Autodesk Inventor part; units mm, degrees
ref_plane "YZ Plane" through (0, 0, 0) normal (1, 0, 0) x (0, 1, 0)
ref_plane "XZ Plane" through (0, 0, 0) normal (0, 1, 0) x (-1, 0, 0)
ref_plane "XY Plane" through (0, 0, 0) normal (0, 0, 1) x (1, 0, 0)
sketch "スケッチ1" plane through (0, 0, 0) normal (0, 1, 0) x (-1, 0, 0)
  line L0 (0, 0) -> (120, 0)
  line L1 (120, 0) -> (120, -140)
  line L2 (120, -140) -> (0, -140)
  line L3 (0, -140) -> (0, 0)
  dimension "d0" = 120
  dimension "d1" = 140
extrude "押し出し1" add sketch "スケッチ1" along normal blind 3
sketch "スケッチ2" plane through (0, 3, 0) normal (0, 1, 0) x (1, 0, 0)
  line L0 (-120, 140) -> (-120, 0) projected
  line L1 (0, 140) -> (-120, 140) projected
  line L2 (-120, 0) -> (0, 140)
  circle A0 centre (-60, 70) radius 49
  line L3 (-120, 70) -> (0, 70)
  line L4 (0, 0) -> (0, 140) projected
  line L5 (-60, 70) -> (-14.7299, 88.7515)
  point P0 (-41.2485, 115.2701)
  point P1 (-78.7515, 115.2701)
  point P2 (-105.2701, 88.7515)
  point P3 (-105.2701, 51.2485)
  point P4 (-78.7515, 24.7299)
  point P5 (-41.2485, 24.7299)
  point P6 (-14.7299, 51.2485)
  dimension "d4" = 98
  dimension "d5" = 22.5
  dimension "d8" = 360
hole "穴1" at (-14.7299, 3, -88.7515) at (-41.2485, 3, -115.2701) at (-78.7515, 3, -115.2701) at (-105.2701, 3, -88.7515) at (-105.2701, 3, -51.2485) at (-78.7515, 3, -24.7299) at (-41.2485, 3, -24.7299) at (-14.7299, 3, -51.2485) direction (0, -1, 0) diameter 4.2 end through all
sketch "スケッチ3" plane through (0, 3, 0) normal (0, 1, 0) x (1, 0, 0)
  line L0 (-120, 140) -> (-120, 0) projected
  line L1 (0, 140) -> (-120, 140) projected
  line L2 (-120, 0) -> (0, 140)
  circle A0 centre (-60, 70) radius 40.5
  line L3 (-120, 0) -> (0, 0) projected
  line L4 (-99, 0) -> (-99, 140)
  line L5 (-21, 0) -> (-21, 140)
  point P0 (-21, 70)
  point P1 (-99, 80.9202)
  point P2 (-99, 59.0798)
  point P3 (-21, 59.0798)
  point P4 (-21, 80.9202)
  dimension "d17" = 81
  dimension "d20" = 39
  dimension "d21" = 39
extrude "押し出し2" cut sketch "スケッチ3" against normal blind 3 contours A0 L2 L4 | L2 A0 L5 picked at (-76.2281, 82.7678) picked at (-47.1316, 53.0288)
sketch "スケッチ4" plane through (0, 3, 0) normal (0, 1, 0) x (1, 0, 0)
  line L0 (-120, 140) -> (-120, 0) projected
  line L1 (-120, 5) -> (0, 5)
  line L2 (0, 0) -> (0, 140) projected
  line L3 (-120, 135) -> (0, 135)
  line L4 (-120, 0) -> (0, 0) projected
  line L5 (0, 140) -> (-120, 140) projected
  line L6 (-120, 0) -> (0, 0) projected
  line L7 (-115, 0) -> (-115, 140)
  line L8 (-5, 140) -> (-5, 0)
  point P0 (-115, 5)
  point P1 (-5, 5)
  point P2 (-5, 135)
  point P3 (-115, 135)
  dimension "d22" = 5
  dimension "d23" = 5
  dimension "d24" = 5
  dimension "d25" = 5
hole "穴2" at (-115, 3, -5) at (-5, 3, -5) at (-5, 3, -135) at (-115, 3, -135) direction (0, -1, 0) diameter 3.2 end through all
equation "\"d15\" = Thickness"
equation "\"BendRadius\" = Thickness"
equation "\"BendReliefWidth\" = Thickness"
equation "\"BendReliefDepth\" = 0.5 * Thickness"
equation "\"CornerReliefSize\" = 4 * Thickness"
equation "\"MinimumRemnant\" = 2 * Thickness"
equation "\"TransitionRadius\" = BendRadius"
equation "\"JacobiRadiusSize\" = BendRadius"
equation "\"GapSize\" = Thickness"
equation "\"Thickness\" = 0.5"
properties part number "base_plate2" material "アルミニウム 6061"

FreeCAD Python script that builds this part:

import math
import FreeCAD as App
import Part
import Sketcher

doc = App.newDocument("Part")
body = doc.addObject("PartDesign::Body", "Body")

sketch1 = body.newObject("Sketcher::SketchObject", "Sketch")
sketch1.AttachmentSupport = (doc.getObject("XZ_Plane"), [""])
sketch1.MapMode = "FlatFace"
sketch1.addGeometry([
    Part.LineSegment(App.Vector(-120, 0, 0), App.Vector(0, 0, 0)),
    Part.LineSegment(App.Vector(0, 0, 0), App.Vector(0, -140, 0)),
    Part.LineSegment(App.Vector(0, -140, 0), App.Vector(-120, -140, 0)),
    Part.LineSegment(App.Vector(-120, -140, 0), App.Vector(-120, 0, 0)),
], False)
sketch1.addConstraint([
    Sketcher.Constraint("Coincident", 0, 2, 1, 1),
    Sketcher.Constraint("Coincident", 1, 2, 2, 1),
    Sketcher.Constraint("Coincident", 2, 2, 3, 1),
    Sketcher.Constraint("Coincident", 3, 2, 0, 1),
    Sketcher.Constraint("Horizontal", 0),
    Sketcher.Constraint("Vertical", 1),
    Sketcher.Constraint("Horizontal", 2),
    Sketcher.Constraint("Vertical", 3),
    Sketcher.Constraint("Coincident", 0, 2, -1, 1),
    Sketcher.Constraint("DistanceX", 0, 1, 0, 2, 120.0),
    Sketcher.Constraint("DistanceY", 1, 2, 1, 1, 140.0),
])
pad1 = body.newObject("PartDesign::Pad", "Pad")
pad1.Profile = sketch1
pad1.Length = 3
pad1.Reversed = True

sketch2 = body.newObject("Sketcher::SketchObject", "Sketch001")
sketch2.AttachmentSupport = (doc.getObject("XZ_Plane"), [""])
sketch2.MapMode = "FlatFace"
sketch2.AttachmentOffset = App.Placement(App.Vector(0, 0, -3), App.Rotation())
sketch2.addGeometry([
    Part.Circle(App.Vector(-14.7, -88.8, 0), App.Vector(0, 0, 1), 2.1),
    Part.Circle(App.Vector(-41.2, -115.3, 0), App.Vector(0, 0, 1), 2.1),
    Part.Circle(App.Vector(-78.8, -115.3, 0), App.Vector(0, 0, 1), 2.1),
    Part.Circle(App.Vector(-105.3, -88.8, 0), App.Vector(0, 0, 1), 2.1),
    Part.Circle(App.Vector(-105.3, -51.2, 0), App.Vector(0, 0, 1), 2.1),
    Part.Circle(App.Vector(-78.8, -24.7, 0), App.Vector(0, 0, 1), 2.1),
    Part.Circle(App.Vector(-41.2, -24.7, 0), App.Vector(0, 0, 1), 2.1),
    Part.Circle(App.Vector(-14.7, -51.2, 0), App.Vector(0, 0, 1), 2.1),
], False)
sketch2.addConstraint([
    Sketcher.Constraint("Equal", 0, 1),
    Sketcher.Constraint("Equal", 1, 2),
    Sketcher.Constraint("Equal", 2, 3),
    Sketcher.Constraint("Equal", 3, 4),
    Sketcher.Constraint("Equal", 4, 5),
    Sketcher.Constraint("Equal", 5, 6),
    Sketcher.Constraint("Equal", 6, 7),
    Sketcher.Constraint("Horizontal", 1, 3, 2, 3),
    Sketcher.Constraint("Horizontal", 0, 3, 3, 3),
    Sketcher.Constraint("Horizontal", 5, 3, 6, 3),
    Sketcher.Constraint("Horizontal", 4, 3, 7, 3),
    Sketcher.Constraint("Vertical", 3, 3, 4, 3),
    Sketcher.Constraint("Vertical", 2, 3, 5, 3),
    Sketcher.Constraint("Vertical", 1, 3, 6, 3),
    Sketcher.Constraint("Vertical", 0, 3, 7, 3),
    Sketcher.Constraint("Diameter", 0, 4.2),
    Sketcher.Constraint("DistanceX", 0, 3, -1, 1, 14.73),
    Sketcher.Constraint("DistanceY", 1, 3, -1, 1, 115.27),
    Sketcher.Constraint("DistanceX", 3, 3, -1, 1, 105.27),
    Sketcher.Constraint("DistanceY", 5, 3, -1, 1, 24.73),
    Sketcher.Constraint("DistanceX", 2, 3, 1, 3, 37.503),
    Sketcher.Constraint("DistanceY", 3, 3, 4, 3, 37.503),
    Sketcher.Constraint("DistanceY", 0, 3, -1, 1, 88.7515),
    Sketcher.Constraint("DistanceX", 1, 3, -1, 1, 41.2485),
])
doc.recompute()
hole = body.newObject("PartDesign::Hole", "Hole")
hole.Profile = sketch2
hole.ThreadType = "None"
hole.Diameter = 4.2
hole.DepthType = "ThroughAll"
hole.Reversed = True

sketch3 = body.newObject("Sketcher::SketchObject", "Sketch002")
sketch3.AttachmentSupport = (doc.getObject("XZ_Plane"), [""])
sketch3.MapMode = "FlatFace"
sketch3.AttachmentOffset = App.Placement(App.Vector(0, 0, -3), App.Rotation())
sketch3.addGeometry([
    Part.LineSegment(App.Vector(-99, -81, 0), App.Vector(-99, -59, 0)),
    Part.ArcOfCircle(Part.Circle(App.Vector(-60, -70, 0), App.Vector(0, 0, 1), 40), math.radians(16), math.radians(164)),
    Part.LineSegment(App.Vector(-21, -59, 0), App.Vector(-21, -81, 0)),
    Part.ArcOfCircle(Part.Circle(App.Vector(-60, -70, 0), App.Vector(0, 0, 1), 40), math.radians(-164), math.radians(-16)),
], False)
sketch3.addConstraint([
    Sketcher.Constraint("Coincident", 0, 2, 1, 2),
    Sketcher.Constraint("Coincident", 1, 1, 2, 1),
    Sketcher.Constraint("Coincident", 2, 2, 3, 2),
    Sketcher.Constraint("Coincident", 3, 1, 0, 1),
    Sketcher.Constraint("Vertical", 0),
    Sketcher.Constraint("Vertical", 2),
    Sketcher.Constraint("Coincident", 3, 3, 1, 3),
    Sketcher.Constraint("Equal", 1, 3),
    Sketcher.Constraint("Horizontal", 0, 2, 1, 1),
    Sketcher.Constraint("Radius", 1, 40.5),
    Sketcher.Constraint("DistanceX", 0, 2, 1, 3, 39.0),
    Sketcher.Constraint("DistanceX", 1, 3, -1, 1, 60.0),
    Sketcher.Constraint("DistanceY", 1, 3, -1, 1, 70.0),
])
pocket1 = body.newObject("PartDesign::Pocket", "Pocket")
pocket1.Profile = sketch3
pocket1.Length = 3
pocket1.Reversed = True

sketch4 = body.newObject("Sketcher::SketchObject", "Sketch003")
sketch4.AttachmentSupport = (doc.getObject("XZ_Plane"), [""])
sketch4.MapMode = "FlatFace"
sketch4.AttachmentOffset = App.Placement(App.Vector(0, 0, -3), App.Rotation())
sketch4.addGeometry([
    Part.Circle(App.Vector(-115, -5, 0), App.Vector(0, 0, 1), 1.6),
    Part.Circle(App.Vector(-5, -5, 0), App.Vector(0, 0, 1), 1.6),
    Part.Circle(App.Vector(-5, -135, 0), App.Vector(0, 0, 1), 1.6),
    Part.Circle(App.Vector(-115, -135, 0), App.Vector(0, 0, 1), 1.6),
], False)
sketch4.addConstraint([
    Sketcher.Constraint("Equal", 0, 1),
    Sketcher.Constraint("Equal", 1, 2),
    Sketcher.Constraint("Equal", 2, 3),
    Sketcher.Constraint("Horizontal", 0, 3, 1, 3),
    Sketcher.Constraint("Horizontal", 2, 3, 3, 3),
    Sketcher.Constraint("Vertical", 1, 3, 2, 3),
    Sketcher.Constraint("Vertical", 0, 3, 3, 3),
    Sketcher.Constraint("Diameter", 0, 3.2),
    Sketcher.Constraint("DistanceX", 0, 3, -1, 1, 115.0),
    Sketcher.Constraint("DistanceY", 0, 3, -1, 1, 5.0),
    Sketcher.Constraint("DistanceX", 1, 3, -1, 1, 5.0),
    Sketcher.Constraint("DistanceY", 2, 3, -1, 1, 135.0),
])
doc.recompute()
hole2 = body.newObject("PartDesign::Hole", "Hole001")
hole2.Profile = sketch4
hole2.ThreadType = "None"
hole2.Diameter = 3.2
hole2.DepthType = "ThroughAll"
hole2.Reversed = True

doc.recompute()
